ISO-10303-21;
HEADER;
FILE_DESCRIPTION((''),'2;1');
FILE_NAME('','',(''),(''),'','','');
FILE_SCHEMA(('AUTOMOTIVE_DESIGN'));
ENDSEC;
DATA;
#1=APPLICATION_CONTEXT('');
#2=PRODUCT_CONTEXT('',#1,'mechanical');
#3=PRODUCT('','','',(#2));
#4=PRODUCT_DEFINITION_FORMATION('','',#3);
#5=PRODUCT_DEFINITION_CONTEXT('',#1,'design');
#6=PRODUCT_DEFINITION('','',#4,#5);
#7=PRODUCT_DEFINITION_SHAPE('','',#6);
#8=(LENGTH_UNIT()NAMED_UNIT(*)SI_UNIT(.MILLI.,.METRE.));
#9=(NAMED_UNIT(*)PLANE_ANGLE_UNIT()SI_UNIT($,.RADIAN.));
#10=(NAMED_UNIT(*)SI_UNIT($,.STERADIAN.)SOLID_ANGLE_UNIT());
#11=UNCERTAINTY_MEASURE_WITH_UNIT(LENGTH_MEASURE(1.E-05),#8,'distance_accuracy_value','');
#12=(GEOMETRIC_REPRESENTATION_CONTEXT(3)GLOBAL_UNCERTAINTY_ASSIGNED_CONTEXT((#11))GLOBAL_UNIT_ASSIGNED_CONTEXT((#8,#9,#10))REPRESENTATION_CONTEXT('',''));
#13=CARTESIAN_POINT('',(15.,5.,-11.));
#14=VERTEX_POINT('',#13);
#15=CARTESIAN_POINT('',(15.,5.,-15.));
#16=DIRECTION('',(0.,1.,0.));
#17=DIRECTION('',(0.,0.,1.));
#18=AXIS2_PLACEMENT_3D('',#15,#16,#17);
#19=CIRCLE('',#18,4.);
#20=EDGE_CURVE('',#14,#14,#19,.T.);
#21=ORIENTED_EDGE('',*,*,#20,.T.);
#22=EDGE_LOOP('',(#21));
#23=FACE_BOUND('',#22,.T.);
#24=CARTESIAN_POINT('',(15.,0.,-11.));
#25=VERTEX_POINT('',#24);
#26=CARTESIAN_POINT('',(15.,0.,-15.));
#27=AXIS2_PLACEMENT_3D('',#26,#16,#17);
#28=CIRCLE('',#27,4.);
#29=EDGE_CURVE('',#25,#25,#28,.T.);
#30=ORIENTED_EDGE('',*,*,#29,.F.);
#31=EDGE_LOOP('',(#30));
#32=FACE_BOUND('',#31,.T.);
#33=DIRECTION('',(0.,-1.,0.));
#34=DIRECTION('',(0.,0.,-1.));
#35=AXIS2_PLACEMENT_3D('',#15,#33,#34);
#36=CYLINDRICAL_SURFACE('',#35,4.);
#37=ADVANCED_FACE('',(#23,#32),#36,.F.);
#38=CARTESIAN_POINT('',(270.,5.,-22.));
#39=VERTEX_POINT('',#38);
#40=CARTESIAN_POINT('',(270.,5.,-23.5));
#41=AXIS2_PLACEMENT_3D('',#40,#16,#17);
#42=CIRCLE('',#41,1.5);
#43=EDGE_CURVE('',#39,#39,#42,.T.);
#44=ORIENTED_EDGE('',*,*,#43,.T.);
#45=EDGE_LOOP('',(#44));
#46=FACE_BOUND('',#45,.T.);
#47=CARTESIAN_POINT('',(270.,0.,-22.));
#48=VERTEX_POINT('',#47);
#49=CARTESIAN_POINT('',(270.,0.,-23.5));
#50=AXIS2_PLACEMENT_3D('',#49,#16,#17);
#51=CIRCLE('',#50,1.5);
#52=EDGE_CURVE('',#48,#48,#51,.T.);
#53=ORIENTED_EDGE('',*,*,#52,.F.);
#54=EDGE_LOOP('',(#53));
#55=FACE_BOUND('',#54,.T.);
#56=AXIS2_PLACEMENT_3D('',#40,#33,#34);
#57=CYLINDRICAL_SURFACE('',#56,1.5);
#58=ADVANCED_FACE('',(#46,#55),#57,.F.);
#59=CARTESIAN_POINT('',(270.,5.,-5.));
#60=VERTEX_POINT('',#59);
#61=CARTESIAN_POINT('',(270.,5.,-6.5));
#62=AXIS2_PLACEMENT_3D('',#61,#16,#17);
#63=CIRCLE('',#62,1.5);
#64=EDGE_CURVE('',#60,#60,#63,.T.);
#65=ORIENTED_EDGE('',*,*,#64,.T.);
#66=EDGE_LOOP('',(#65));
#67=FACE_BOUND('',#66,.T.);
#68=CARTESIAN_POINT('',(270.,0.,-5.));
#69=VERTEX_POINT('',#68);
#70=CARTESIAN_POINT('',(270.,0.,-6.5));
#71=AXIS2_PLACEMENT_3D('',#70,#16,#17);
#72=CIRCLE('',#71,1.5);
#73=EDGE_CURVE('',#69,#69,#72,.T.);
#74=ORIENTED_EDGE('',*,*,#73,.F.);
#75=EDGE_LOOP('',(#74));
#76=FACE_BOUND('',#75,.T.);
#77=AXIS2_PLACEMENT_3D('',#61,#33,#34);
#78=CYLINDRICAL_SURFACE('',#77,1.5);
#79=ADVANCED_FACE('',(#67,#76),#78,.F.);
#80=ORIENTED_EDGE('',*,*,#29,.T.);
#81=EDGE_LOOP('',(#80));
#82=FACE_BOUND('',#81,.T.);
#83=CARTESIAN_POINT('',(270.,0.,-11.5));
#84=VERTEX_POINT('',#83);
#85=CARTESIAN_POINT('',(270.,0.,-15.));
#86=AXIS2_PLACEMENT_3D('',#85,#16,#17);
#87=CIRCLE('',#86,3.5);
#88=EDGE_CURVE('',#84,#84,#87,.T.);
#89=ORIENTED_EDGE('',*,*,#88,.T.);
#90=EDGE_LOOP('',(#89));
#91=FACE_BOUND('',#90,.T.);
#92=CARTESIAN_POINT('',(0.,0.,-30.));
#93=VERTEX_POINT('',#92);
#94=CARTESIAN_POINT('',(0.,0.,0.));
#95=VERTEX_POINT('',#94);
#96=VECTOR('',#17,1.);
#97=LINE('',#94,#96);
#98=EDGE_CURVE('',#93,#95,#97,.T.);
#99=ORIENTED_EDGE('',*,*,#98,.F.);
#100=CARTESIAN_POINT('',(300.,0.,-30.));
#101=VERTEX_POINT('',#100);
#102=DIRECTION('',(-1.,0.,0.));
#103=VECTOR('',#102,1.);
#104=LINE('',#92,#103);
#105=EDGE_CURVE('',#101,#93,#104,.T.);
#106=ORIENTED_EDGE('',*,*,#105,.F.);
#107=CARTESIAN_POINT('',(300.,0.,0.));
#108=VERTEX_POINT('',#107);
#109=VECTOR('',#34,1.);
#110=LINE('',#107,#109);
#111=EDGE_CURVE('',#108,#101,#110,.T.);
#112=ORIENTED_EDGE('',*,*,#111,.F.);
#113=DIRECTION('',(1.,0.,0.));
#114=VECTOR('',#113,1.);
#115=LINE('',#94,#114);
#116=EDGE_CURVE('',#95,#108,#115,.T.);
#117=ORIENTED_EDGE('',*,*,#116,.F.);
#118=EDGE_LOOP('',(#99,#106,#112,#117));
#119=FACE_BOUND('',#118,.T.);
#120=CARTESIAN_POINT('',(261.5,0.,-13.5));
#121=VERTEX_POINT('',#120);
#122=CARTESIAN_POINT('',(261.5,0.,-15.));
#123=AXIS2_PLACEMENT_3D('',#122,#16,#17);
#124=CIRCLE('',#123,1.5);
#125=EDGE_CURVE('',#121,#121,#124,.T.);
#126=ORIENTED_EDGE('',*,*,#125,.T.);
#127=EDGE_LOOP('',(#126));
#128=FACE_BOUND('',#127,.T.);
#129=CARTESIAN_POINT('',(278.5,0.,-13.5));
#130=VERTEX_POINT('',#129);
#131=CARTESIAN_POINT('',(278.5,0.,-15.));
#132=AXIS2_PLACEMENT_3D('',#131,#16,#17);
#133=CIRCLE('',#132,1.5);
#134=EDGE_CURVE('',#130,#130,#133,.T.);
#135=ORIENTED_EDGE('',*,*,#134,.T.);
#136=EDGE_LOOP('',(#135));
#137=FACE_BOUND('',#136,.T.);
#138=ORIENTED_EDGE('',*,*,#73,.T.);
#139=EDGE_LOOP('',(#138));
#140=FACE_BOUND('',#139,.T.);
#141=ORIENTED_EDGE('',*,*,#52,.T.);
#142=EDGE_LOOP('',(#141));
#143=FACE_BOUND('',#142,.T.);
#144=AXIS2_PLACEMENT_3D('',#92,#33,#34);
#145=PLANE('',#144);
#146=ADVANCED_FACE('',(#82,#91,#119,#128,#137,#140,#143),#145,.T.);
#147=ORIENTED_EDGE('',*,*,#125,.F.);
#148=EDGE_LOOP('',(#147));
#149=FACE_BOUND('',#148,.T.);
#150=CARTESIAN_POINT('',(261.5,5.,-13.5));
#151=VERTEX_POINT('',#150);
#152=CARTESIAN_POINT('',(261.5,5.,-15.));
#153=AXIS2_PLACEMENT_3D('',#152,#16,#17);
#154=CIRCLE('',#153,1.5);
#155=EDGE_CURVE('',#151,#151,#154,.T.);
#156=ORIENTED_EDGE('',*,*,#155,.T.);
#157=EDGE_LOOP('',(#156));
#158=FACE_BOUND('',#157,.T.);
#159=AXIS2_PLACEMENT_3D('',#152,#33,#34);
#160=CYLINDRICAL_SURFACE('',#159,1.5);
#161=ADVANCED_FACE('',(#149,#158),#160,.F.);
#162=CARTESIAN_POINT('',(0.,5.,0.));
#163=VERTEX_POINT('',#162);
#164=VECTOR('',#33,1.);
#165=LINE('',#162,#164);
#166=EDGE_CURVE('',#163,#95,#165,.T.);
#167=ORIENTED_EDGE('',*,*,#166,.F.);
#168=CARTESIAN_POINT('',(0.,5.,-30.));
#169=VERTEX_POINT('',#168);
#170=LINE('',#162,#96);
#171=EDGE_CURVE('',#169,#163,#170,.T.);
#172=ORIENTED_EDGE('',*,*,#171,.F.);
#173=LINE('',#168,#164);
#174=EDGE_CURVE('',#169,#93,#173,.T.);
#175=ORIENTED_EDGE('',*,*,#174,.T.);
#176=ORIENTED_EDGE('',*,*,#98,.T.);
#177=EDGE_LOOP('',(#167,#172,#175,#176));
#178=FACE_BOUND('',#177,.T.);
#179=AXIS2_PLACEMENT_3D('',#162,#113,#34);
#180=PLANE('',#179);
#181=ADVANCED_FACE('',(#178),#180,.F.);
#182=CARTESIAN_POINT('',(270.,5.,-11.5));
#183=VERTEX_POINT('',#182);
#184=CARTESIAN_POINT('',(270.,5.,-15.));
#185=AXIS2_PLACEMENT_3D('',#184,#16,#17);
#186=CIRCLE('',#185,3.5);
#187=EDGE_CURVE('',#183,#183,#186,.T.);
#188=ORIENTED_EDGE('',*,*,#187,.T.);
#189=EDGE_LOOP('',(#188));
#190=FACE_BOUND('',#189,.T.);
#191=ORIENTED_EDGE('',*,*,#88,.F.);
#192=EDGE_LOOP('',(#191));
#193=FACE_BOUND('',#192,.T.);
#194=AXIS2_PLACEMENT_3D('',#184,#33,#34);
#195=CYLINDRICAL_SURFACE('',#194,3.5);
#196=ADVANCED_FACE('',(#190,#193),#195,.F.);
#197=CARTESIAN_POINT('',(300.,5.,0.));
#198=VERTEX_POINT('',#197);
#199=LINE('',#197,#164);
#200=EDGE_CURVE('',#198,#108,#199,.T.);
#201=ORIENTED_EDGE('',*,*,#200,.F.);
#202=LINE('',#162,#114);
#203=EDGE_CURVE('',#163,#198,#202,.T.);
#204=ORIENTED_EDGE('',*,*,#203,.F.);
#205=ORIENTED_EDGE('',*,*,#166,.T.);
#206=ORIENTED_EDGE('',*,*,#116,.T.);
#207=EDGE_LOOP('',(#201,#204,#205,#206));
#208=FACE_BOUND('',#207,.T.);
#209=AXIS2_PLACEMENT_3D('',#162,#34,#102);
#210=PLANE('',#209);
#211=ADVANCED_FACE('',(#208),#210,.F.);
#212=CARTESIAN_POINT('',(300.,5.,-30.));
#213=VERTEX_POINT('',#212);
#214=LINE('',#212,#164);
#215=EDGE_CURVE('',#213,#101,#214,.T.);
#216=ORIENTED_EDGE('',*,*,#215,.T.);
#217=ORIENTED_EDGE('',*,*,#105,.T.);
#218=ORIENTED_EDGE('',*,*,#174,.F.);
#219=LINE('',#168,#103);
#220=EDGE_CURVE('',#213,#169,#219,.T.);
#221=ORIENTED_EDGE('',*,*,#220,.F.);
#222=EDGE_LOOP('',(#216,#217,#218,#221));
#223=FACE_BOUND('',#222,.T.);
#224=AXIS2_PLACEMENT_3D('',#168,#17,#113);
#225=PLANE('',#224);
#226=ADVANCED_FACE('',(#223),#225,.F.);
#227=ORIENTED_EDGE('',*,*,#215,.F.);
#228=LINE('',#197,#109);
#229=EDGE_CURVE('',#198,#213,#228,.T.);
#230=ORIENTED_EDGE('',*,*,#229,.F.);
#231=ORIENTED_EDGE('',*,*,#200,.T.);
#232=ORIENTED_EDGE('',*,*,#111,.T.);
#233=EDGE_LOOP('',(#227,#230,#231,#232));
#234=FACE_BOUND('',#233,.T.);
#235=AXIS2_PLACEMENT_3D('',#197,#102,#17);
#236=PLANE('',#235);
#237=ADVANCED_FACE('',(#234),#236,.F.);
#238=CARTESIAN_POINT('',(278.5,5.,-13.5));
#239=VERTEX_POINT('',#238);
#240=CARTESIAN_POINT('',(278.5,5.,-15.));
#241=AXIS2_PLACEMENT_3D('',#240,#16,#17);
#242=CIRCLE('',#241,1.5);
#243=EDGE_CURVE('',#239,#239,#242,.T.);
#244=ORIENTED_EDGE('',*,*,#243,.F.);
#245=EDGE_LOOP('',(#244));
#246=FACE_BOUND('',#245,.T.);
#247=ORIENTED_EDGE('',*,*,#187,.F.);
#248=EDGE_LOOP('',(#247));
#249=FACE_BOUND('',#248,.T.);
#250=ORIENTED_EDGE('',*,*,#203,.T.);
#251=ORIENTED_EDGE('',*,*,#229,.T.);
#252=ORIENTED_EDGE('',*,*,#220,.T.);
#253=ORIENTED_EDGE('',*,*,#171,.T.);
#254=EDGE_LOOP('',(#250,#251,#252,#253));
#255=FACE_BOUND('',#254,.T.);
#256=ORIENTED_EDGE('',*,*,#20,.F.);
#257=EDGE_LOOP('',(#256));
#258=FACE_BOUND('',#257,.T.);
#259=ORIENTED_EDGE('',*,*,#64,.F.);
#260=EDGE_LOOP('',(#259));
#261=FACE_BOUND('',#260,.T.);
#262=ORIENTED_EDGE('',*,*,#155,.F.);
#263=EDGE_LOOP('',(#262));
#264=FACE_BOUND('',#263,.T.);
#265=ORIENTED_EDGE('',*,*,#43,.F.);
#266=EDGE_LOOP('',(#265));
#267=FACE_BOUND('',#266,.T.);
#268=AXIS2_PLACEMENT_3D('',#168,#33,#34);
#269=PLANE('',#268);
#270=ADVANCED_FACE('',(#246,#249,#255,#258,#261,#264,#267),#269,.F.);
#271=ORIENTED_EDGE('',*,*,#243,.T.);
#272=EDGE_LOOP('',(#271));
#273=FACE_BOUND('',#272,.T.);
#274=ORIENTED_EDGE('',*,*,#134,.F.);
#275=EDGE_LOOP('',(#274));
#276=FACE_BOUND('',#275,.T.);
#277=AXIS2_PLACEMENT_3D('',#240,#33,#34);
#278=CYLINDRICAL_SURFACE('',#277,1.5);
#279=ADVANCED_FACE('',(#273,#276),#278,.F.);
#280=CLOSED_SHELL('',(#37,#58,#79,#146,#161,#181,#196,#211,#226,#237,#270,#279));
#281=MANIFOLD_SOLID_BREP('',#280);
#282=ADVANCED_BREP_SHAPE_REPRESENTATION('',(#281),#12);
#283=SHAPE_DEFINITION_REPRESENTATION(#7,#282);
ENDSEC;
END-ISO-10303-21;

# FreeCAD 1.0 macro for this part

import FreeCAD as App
import Part
import Sketcher
from FreeCAD import Vector
Q = App.Units.Quantity


def add_polygon(sketch, points):
    """Adds a closed chain of lines whose ends are joined by coincident constraints."""
    first, n = sketch.GeometryCount, len(points)
    for a, b in zip(points, points[1:] + points[:1]):
        sketch.addGeometry(Part.LineSegment(App.Vector(*a, 0), App.Vector(*b, 0)), False)
    for i in range(n):
        sketch.addConstraint(Sketcher.Constraint("Coincident", first + i, 2, first + (i + 1) % n, 1))

doc = App.newDocument("Part")
body = doc.addObject("PartDesign::Body", "Body")

sketch1 = body.newObject("Sketcher::SketchObject", "Sketch")
sketch1.AttachmentSupport = (doc.getObject("XZ_Plane"), [""])
sketch1.MapMode = "FlatFace"
add_polygon(sketch1, [(0, -30), (0, 0), (300, 0), (300, -30)])
sketch1.addGeometry(Part.Circle(Vector(270, -6.5, 0), Vector(0, 0, 1), 1.5), False)
sketch1.addGeometry(Part.Circle(Vector(15, -15, 0), Vector(0, 0, 1), 4), False)
sketch1.addGeometry(Part.Circle(Vector(261.5, -15, 0), Vector(0, 0, 1), 1.5), False)
sketch1.addGeometry(Part.Circle(Vector(270, -15, 0), Vector(0, 0, 1), 3.5), False)
sketch1.addGeometry(Part.Circle(Vector(278.5, -15, 0), Vector(0, 0, 1), 1.5), False)
sketch1.addGeometry(Part.Circle(Vector(270, -23.5, 0), Vector(0, 0, 1), 1.5), False)
sketch1.addConstraint(Sketcher.Constraint("Vertical", 0))
sketch1.addConstraint(Sketcher.Constraint("Horizontal", 1))
sketch1.addConstraint(Sketcher.Constraint("Vertical", 2))
sketch1.addConstraint(Sketcher.Constraint("Horizontal", 3))
sketch1.addConstraint(Sketcher.Constraint("Coincident", 0, 2, -1, 1))
sketch1.addConstraint(Sketcher.Constraint("Equal", 4, 6))
sketch1.addConstraint(Sketcher.Constraint("Equal", 6, 8))
sketch1.addConstraint(Sketcher.Constraint("Equal", 8, 9))
sketch1.addConstraint(Sketcher.Constraint("Horizontal", 5, 3, 6, 3))
sketch1.addConstraint(Sketcher.Constraint("Horizontal", 6, 3, 7, 3))
sketch1.addConstraint(Sketcher.Constraint("Horizontal", 7, 3, 8, 3))
sketch1.addConstraint(Sketcher.Constraint("Vertical", 4, 3, 7, 3))
sketch1.addConstraint(Sketcher.Constraint("Vertical", 7, 3, 9, 3))
sketch1.addConstraint(Sketcher.Constraint("Diameter", 4, Q("3 mm")))
sketch1.addConstraint(Sketcher.Constraint("Diameter", 5, Q("8 mm")))
sketch1.addConstraint(Sketcher.Constraint("Diameter", 7, Q("7 mm")))
sketch1.addConstraint(Sketcher.Constraint("DistanceX", 1, 1, 1, 2, Q("300 mm")))
sketch1.addConstraint(Sketcher.Constraint("DistanceY", 0, 1, 0, 2, Q("30 mm")))
sketch1.addConstraint(Sketcher.Constraint("DistanceX", -1, 1, 4, 3, Q("270 mm")))
sketch1.addConstraint(Sketcher.Constraint("DistanceX", -1, 1, 5, 3, Q("15 mm")))
sketch1.addConstraint(Sketcher.Constraint("DistanceY", 5, 3, -1, 1, Q("15 mm")))
sketch1.addConstraint(Sketcher.Constraint("DistanceX", 6, 3, 8, 3, Q("17 mm")))
sketch1.addConstraint(Sketcher.Constraint("DistanceY", 9, 3, 4, 3, Q("17 mm")))
sketch1.addConstraint(Sketcher.Constraint("DistanceY", 4, 3, -1, 1, Q("6.5 mm")))
sketch1.addConstraint(Sketcher.Constraint("DistanceX", -1, 1, 6, 3, Q("261.5 mm")))
pad1 = body.newObject("PartDesign::Pad", "Pad")
pad1.Profile = sketch1
pad1.Length = 5
pad1.Reversed = True

doc.recompute()
